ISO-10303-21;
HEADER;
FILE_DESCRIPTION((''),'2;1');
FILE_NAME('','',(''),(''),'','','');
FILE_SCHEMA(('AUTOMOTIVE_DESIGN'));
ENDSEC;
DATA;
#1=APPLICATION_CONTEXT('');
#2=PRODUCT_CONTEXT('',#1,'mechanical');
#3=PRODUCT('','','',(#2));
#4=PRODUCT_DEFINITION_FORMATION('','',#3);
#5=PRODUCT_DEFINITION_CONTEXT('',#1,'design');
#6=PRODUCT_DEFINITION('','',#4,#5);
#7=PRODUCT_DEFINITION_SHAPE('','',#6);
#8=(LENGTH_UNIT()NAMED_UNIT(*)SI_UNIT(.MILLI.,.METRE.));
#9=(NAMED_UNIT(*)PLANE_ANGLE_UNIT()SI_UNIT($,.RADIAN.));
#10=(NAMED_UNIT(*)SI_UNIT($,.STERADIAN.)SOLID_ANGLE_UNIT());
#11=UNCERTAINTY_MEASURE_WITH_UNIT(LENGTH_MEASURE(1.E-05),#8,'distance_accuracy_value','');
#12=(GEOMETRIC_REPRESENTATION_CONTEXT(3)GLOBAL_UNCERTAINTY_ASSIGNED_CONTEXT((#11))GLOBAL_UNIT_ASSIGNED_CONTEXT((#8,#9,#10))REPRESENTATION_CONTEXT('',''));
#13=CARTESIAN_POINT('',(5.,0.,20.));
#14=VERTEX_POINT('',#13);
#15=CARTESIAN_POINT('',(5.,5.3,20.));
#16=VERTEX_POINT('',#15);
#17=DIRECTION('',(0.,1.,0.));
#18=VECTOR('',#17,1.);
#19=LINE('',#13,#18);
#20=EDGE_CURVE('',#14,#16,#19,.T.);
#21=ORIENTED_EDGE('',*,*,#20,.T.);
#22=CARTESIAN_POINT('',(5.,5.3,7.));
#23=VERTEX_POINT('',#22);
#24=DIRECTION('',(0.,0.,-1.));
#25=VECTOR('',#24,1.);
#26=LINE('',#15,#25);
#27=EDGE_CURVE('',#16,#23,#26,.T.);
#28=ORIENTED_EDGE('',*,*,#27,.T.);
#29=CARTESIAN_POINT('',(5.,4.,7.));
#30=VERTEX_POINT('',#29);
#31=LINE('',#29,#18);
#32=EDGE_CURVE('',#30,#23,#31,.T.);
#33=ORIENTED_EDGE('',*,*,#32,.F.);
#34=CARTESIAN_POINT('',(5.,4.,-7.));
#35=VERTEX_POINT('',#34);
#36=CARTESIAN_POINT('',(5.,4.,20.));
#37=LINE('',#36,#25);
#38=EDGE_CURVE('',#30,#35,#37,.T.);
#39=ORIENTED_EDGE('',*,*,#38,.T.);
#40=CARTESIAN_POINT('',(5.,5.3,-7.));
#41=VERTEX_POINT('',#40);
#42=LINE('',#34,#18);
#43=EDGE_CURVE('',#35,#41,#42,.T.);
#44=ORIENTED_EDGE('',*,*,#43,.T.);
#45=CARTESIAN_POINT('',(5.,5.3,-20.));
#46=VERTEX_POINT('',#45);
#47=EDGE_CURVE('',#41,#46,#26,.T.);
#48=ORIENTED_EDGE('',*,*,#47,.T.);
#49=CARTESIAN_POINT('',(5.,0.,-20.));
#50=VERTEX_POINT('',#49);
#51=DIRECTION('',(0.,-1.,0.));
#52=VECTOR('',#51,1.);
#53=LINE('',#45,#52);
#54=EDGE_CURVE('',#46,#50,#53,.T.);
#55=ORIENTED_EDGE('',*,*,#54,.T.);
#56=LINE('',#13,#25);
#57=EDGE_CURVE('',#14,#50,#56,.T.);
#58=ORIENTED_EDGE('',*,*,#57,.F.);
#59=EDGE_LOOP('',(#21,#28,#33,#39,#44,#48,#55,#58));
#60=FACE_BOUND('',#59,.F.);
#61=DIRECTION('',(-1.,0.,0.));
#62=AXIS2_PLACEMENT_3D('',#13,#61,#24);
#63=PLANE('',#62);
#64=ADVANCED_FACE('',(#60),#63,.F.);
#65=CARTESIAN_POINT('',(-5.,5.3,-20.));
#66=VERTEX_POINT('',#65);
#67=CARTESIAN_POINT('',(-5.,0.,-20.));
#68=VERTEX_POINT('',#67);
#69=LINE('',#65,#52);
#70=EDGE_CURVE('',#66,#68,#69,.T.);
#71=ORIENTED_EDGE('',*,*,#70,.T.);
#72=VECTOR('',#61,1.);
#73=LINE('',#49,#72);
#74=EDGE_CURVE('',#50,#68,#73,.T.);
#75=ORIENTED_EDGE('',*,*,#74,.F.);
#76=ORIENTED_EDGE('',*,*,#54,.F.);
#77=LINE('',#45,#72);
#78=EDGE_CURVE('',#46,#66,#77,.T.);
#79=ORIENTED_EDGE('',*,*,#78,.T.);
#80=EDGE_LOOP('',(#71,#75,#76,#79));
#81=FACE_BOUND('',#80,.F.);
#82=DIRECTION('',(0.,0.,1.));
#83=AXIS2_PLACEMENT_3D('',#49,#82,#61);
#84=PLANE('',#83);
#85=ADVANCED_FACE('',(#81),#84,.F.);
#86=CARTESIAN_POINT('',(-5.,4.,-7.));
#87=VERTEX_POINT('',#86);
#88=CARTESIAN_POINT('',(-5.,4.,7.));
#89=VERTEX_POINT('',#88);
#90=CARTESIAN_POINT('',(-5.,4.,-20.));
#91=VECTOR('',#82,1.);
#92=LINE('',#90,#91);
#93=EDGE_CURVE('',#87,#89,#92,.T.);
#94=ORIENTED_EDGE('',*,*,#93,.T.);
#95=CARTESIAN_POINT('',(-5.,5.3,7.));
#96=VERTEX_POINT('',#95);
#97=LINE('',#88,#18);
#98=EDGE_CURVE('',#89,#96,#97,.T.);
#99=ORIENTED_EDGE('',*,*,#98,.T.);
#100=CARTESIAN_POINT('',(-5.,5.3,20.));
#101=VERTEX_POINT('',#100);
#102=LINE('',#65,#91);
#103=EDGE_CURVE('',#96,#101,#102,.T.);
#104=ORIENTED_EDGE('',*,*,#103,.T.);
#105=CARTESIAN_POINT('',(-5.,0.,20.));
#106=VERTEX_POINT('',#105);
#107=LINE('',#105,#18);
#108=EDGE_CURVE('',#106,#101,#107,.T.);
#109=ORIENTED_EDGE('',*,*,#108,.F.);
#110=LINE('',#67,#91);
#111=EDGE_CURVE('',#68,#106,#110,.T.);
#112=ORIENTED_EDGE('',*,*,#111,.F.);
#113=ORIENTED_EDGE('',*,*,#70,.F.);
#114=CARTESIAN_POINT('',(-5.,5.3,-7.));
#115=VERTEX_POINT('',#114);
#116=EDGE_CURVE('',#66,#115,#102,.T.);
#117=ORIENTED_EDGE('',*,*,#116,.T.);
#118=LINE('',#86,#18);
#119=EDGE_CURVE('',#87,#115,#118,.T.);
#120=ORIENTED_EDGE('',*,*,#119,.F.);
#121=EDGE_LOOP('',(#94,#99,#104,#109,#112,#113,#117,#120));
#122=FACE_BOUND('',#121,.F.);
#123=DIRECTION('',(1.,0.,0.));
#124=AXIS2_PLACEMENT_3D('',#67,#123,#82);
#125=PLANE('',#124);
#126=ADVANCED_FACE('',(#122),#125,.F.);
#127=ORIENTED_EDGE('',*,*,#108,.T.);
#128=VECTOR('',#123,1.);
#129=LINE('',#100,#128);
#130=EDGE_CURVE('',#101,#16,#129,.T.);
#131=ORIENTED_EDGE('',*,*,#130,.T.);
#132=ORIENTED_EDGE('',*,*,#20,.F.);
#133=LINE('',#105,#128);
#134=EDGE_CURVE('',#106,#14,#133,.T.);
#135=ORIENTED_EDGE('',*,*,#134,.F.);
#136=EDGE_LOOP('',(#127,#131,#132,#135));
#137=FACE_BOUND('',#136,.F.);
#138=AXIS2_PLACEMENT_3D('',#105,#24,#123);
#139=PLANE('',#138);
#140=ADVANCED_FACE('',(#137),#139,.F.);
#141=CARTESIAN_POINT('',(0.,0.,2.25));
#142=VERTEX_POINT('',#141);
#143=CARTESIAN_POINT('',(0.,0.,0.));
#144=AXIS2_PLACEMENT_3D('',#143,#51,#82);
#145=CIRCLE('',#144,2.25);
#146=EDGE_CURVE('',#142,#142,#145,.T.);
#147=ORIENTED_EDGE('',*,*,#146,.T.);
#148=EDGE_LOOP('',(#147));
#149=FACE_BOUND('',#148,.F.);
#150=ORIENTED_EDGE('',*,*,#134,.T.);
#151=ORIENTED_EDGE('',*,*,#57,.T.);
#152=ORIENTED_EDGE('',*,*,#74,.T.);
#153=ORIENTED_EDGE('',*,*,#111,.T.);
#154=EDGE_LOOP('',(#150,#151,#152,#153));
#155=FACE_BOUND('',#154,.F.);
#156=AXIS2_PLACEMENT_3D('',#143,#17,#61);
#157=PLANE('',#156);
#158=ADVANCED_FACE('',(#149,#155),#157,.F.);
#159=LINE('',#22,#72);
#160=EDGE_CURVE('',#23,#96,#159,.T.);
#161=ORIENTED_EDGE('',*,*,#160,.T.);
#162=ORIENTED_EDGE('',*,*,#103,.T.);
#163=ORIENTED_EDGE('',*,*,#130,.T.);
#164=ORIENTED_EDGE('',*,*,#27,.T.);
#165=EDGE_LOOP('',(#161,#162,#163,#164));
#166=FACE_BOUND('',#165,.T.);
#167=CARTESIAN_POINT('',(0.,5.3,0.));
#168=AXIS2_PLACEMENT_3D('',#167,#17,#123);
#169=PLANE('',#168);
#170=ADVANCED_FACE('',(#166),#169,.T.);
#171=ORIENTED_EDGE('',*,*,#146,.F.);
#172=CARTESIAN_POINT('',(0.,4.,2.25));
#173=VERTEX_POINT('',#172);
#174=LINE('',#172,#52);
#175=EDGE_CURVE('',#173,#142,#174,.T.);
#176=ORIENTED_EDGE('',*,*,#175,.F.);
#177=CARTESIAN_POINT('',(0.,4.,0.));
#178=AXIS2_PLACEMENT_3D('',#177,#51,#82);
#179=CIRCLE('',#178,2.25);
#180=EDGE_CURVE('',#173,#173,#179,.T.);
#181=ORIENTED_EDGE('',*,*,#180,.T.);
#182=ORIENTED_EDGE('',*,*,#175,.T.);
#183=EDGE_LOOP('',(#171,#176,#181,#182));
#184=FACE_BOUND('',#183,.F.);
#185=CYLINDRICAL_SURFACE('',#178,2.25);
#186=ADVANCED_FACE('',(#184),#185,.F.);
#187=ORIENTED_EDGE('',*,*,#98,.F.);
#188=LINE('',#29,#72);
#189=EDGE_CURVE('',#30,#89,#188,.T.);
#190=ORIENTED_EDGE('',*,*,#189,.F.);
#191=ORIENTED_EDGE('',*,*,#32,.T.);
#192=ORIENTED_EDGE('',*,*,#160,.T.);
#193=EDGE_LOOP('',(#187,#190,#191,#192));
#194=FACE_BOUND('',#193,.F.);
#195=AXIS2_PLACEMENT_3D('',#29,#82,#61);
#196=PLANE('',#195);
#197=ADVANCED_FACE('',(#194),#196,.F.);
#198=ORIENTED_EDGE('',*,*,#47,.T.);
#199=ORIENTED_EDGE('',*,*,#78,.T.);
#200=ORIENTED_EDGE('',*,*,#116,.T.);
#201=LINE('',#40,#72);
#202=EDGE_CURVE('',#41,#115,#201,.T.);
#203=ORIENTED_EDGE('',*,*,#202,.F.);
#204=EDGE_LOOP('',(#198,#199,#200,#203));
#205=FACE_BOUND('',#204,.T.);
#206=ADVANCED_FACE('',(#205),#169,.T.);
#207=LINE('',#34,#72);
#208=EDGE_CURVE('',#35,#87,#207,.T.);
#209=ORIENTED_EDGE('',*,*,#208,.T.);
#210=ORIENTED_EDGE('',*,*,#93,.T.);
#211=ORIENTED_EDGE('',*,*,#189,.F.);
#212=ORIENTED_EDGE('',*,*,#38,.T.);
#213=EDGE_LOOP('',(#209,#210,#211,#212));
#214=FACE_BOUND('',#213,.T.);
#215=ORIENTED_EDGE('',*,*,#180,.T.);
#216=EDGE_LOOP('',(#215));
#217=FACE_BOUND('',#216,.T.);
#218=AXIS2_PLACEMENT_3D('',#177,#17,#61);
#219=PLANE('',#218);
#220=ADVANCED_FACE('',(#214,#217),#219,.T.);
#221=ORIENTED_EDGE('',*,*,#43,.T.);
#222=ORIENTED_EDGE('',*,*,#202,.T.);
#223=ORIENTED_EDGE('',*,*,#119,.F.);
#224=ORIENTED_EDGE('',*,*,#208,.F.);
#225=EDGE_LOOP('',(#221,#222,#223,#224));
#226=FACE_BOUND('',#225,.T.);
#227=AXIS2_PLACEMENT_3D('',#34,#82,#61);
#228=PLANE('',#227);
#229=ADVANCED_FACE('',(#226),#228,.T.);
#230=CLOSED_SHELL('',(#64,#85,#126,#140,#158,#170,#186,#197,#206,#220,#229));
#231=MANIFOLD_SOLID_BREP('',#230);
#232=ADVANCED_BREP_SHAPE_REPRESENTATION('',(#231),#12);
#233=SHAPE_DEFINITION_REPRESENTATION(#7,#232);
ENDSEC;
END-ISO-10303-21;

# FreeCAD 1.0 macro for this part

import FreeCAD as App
import Part
import Sketcher


def add_polygon(sketch, points):
    """Adds a closed chain of lines whose ends are joined by coincident constraints."""
    first, n = sketch.GeometryCount, len(points)
    for a, b in zip(points, points[1:] + points[:1]):
        sketch.addGeometry(Part.LineSegment(App.Vector(*a, 0), App.Vector(*b, 0)), False)
    for i in range(n):
        sketch.addConstraint(Sketcher.Constraint("Coincident", first + i, 2, first + (i + 1) % n, 1))

doc = App.newDocument("Part")
body = doc.addObject("PartDesign::Body", "Body")

sketch1 = body.newObject("Sketcher::SketchObject", "Sketch")
sketch1.AttachmentSupport = (doc.getObject("XZ_Plane"), [""])
sketch1.MapMode = "FlatFace"
add_polygon(sketch1, [(-5, -20), (-5, 20), (5, 20), (5, -20)])
sketch1.addConstraint([
    Sketcher.Constraint("Vertical", 0),
    Sketcher.Constraint("Horizontal", 1),
    Sketcher.Constraint("Vertical", 2),
    Sketcher.Constraint("Horizontal", 3),
    Sketcher.Constraint("Symmetric", 0, 2, 2, 2, -1, 1),
    Sketcher.Constraint("DistanceX", 1, 1, 1, 2, 10.0),
    Sketcher.Constraint("DistanceY", 0, 1, 0, 2, 40.0),
])
pad1 = body.newObject("PartDesign::Pad", "Pad")
pad1.Profile = sketch1
pad1.Length = 4
pad1.Reversed = True

sketch2 = body.newObject("Sketcher::SketchObject", "Sketch001")
sketch2.AttachmentSupport = (doc.getObject("XZ_Plane"), [""])
sketch2.MapMode = "FlatFace"
sketch2.AttachmentOffset = App.Placement(App.Vector(0, 0, -4), App.Rotation())
add_polygon(sketch2, [(5, -20), (-5, -20), (-5, -7), (5, -7)])
add_polygon(sketch2, [(5, 7), (-5, 7), (-5, 20), (5, 20)])
sketch2.addConstraint([
    Sketcher.Constraint("Horizontal", 0),
    Sketcher.Constraint("Vertical", 1),
    Sketcher.Constraint("Horizontal", 2),
    Sketcher.Constraint("Vertical", 3),
    Sketcher.Constraint("Horizontal", 4),
    Sketcher.Constraint("Vertical", 5),
    Sketcher.Constraint("Horizontal", 6),
    Sketcher.Constraint("Vertical", 7),
    Sketcher.Constraint("Symmetric", 2, 2, 4, 2, -1, 1),
    Sketcher.Constraint("Symmetric", 0, 2, 6, 2, -1, 1),
    Sketcher.Constraint("Vertical", 1, 2, 4, 2),
    Sketcher.Constraint("DistanceY", 1, 1, 1, 2, 13.0),
    Sketcher.Constraint("DistanceX", 0, 2, 0, 1, 10.0),
    Sketcher.Constraint("DistanceY", 0, 2, -1, 1, 20.0),
])
pad2 = body.newObject("PartDesign::Pad", "Pad001")
pad2.Profile = sketch2
pad2.Length = 1.3
pad2.Reversed = True

sketch3 = body.newObject("Sketcher::SketchObject", "Sketch002")
sketch3.AttachmentSupport = (doc.getObject("XZ_Plane"), [""])
sketch3.MapMode = "FlatFace"
sketch3.AttachmentOffset = App.Placement(App.Vector(0, 0, -4), App.Rotation())
sketch3.addGeometry(Part.Circle(App.Vector(0, 0, 0), App.Vector(0, 0, 1), 2.25), False)
sketch3.addConstraint([
    Sketcher.Constraint("Coincident", 0, 3, -1, 1),
    Sketcher.Constraint("Diameter", 0, 4.5),
])
doc.recompute()
hole = body.newObject("PartDesign::Hole", "Hole")
hole.Profile = sketch3
hole.ThreadType = "None"
hole.Diameter = 4.5
hole.DepthType = "ThroughAll"
hole.Reversed = True

doc.recompute()
